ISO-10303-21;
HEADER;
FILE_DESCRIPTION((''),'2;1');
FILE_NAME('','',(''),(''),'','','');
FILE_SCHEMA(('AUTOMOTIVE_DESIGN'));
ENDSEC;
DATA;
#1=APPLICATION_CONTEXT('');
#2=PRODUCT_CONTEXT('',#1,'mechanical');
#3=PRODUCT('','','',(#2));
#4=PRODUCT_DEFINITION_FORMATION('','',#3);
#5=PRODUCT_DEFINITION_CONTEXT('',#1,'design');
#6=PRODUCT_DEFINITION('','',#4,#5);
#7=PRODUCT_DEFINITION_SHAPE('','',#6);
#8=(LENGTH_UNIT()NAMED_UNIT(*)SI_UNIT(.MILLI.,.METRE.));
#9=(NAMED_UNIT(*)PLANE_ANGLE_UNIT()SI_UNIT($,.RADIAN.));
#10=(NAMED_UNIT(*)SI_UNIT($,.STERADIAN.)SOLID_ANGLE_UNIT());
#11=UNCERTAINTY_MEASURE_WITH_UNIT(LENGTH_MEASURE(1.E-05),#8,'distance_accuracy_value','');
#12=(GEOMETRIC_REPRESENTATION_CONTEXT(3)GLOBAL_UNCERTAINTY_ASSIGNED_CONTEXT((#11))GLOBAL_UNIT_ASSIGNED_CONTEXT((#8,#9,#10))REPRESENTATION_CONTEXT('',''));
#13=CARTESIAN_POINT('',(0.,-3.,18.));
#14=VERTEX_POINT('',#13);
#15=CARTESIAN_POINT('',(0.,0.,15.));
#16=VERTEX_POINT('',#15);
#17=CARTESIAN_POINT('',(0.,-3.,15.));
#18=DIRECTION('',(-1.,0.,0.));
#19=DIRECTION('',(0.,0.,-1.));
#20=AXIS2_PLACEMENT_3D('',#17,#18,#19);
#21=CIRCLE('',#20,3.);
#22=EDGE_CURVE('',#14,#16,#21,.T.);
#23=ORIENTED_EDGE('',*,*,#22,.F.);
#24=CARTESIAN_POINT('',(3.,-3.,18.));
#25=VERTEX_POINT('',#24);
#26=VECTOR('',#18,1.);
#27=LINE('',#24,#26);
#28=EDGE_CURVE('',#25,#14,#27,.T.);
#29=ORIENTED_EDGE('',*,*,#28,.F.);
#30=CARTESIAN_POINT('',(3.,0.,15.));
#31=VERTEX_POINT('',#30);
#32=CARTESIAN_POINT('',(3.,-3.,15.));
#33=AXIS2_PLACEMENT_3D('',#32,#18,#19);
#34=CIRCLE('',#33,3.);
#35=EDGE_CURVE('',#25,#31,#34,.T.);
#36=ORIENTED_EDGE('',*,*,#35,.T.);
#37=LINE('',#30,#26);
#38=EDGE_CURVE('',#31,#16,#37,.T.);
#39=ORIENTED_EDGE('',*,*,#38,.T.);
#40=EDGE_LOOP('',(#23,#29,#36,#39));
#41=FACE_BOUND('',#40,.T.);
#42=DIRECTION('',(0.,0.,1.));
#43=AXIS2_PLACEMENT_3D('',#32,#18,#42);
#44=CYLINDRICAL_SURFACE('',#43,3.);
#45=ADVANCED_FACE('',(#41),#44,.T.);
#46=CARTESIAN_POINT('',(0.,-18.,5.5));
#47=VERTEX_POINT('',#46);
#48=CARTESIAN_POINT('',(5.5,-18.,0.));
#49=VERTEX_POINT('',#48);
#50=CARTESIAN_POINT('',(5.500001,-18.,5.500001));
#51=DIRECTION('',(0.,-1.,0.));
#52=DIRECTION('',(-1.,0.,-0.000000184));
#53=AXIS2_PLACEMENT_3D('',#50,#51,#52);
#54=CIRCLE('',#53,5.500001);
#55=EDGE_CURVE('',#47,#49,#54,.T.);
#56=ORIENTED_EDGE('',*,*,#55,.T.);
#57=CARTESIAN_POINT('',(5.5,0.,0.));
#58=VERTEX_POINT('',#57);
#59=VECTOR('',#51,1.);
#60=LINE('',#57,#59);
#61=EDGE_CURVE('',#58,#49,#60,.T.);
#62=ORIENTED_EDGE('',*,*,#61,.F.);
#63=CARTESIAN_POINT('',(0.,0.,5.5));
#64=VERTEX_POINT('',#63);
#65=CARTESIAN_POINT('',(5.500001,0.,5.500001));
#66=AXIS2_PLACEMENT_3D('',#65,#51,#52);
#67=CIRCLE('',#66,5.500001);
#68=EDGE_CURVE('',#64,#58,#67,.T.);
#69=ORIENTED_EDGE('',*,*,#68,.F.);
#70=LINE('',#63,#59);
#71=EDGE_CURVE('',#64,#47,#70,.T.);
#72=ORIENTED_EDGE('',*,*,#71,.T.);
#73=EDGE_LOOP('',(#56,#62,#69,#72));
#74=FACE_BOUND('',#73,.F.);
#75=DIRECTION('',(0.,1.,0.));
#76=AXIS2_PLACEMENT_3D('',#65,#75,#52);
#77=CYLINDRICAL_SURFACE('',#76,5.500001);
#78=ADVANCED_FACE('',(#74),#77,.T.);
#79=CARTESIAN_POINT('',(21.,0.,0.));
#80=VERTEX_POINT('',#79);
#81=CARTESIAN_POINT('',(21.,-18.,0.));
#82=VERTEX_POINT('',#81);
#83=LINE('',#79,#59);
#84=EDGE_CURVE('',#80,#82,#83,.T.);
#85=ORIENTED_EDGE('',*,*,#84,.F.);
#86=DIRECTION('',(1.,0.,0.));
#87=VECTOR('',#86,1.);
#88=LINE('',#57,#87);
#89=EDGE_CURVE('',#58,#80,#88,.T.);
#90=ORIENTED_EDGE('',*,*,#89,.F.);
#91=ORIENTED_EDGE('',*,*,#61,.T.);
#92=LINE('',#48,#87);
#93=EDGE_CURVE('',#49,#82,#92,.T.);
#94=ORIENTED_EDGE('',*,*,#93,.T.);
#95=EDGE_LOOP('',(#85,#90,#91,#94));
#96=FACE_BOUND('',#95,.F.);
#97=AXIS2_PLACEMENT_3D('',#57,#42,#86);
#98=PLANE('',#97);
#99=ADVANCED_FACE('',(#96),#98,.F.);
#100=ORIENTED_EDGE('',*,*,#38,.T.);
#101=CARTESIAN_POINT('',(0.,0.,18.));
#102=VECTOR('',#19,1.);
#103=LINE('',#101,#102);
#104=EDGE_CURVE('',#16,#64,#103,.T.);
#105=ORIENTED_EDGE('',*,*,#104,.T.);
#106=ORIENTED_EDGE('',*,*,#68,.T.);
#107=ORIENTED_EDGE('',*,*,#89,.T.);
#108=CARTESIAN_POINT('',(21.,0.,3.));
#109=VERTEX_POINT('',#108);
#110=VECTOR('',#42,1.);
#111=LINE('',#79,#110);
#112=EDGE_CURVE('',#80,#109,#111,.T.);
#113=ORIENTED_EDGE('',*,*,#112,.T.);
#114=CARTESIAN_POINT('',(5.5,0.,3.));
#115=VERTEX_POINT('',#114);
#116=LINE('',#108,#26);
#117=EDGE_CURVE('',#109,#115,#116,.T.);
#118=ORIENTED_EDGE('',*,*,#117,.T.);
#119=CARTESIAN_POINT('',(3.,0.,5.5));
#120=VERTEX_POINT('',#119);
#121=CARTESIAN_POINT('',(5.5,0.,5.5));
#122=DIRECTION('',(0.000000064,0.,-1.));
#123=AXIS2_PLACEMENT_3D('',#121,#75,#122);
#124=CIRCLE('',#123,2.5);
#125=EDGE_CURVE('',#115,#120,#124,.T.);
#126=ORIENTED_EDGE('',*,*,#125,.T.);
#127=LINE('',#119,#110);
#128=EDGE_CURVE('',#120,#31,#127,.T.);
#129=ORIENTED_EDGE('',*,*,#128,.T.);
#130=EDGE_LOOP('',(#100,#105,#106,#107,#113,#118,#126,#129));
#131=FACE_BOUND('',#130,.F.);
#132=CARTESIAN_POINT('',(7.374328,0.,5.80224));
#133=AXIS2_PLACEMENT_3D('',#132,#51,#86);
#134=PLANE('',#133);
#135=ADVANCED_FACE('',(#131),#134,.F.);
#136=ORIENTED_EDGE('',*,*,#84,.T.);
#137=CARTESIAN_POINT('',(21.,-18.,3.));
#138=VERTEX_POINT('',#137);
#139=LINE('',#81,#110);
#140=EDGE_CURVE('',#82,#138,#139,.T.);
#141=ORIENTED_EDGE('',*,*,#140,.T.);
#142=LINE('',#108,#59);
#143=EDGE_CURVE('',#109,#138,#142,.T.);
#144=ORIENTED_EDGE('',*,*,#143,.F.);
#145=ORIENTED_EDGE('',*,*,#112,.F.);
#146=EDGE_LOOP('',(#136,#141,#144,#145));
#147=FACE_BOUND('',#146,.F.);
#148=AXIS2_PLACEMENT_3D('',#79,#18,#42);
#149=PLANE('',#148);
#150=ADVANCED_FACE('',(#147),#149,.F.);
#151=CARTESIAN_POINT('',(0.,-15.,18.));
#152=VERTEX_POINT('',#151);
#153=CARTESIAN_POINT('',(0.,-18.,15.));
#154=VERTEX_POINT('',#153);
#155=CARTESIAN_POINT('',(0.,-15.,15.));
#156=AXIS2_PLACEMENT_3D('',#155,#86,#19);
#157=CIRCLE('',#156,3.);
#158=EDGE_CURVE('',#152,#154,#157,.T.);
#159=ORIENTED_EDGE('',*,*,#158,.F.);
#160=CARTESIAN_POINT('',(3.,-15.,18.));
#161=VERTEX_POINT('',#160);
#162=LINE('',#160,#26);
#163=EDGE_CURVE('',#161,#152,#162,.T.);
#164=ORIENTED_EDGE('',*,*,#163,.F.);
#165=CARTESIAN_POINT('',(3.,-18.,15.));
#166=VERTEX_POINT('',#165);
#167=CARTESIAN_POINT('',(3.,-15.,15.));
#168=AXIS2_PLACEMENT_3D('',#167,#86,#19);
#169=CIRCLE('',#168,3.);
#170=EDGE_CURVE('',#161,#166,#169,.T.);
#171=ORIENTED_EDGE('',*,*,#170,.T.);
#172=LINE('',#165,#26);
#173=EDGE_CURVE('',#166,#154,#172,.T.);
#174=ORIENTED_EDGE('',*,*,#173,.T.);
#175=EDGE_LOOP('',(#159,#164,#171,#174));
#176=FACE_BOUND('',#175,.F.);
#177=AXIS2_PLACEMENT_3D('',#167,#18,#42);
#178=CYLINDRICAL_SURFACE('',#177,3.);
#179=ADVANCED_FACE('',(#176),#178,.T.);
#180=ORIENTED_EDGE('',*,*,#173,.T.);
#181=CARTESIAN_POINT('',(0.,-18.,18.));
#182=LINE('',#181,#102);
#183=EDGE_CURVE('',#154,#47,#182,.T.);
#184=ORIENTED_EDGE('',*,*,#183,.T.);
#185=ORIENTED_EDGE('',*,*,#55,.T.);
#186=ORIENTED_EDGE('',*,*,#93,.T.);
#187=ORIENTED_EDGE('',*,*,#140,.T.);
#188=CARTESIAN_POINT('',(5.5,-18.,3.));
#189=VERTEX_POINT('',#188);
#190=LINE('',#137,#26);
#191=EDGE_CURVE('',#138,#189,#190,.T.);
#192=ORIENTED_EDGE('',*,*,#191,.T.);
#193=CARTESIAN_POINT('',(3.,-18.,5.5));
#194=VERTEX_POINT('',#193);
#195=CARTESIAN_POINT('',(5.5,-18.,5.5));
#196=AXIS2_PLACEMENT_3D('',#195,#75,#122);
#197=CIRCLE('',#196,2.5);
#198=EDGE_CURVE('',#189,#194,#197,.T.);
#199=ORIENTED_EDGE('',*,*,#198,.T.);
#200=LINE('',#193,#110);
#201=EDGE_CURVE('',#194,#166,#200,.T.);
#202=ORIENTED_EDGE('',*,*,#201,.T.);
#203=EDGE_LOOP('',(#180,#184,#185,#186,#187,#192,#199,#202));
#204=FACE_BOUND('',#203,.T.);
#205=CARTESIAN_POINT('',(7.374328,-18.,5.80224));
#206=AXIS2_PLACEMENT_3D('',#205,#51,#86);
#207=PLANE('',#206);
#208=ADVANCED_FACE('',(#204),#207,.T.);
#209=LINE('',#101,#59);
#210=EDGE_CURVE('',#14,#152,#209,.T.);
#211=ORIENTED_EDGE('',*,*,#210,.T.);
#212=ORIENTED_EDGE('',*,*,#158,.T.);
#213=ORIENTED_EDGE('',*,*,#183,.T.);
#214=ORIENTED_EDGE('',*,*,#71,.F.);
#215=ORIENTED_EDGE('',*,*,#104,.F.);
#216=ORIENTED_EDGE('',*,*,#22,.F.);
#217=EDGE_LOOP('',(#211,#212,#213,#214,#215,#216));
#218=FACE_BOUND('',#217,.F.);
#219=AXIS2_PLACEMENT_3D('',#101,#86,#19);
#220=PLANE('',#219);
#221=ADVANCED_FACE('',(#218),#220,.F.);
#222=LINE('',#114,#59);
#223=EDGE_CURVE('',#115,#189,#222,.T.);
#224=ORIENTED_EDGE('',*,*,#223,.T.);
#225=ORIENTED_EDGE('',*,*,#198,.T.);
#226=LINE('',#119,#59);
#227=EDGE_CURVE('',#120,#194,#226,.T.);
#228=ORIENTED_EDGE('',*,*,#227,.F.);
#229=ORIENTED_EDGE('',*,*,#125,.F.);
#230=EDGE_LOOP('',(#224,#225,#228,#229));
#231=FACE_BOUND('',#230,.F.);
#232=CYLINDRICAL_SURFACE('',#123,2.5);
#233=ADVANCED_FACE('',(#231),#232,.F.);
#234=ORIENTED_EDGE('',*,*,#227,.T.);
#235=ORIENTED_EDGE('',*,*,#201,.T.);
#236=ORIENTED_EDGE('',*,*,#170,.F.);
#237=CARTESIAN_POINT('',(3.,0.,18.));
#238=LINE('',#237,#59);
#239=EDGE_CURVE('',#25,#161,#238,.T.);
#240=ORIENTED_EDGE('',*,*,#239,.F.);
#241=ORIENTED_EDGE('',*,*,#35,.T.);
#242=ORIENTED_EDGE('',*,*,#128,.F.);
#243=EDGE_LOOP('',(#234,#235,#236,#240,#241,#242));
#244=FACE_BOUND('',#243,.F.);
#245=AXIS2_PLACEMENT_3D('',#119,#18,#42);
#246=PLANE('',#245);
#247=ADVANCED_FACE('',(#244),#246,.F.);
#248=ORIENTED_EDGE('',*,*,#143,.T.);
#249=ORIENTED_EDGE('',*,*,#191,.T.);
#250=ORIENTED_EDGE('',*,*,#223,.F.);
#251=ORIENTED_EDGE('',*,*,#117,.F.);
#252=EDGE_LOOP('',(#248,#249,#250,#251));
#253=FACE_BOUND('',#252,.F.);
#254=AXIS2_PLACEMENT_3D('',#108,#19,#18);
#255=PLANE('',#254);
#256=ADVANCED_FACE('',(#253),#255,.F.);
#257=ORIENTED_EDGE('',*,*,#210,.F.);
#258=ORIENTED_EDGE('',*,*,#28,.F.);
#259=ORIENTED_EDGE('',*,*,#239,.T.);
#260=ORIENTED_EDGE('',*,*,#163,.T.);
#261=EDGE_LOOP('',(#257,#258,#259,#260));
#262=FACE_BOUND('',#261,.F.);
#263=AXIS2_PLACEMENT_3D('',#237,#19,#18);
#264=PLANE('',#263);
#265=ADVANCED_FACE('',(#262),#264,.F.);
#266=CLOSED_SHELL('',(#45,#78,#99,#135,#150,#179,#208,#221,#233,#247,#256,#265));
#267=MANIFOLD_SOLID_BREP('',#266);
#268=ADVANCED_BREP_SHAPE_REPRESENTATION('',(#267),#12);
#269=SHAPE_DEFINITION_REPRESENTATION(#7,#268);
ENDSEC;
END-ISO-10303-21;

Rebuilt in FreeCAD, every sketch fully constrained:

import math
import FreeCAD as App
import Part
import Sketcher

V = App.Vector
Q = App.Units.Quantity


def edges_at(feature, points):
    """Names of the edges that pass closest to the given points."""
    edges = feature.Shape.Edges
    near = lambda p: min(range(len(edges)), key=lambda i: edges[i].distToShape(Part.Vertex(*p))[0])
    return sorted({f"Edge{near(p) + 1}" for p in points})

doc = App.newDocument("Part")
body = doc.addObject("PartDesign::Body", "Body")

# Sketch on XZ plane
sketch1 = body.newObject("Sketcher::SketchObject", "Sketch")
sketch1.AttachmentSupport = (doc.getObject("XZ_Plane"), [""])
sketch1.MapMode = "FlatFace"
sketch1.addGeometry([
    Part.ArcOfCircle(Part.Circle(V(5.5, 5.5, 0), V(0, 0, 1), 5.5), math.radians(-180), math.radians(-90)),  # 0
    Part.LineSegment(V(5.5, 0, 0), V(21, 0, 0)),  # 1
    Part.LineSegment(V(21, 0, 0), V(21, 3, 0)),  # 2
    Part.LineSegment(V(21, 3, 0), V(5.5, 3, 0)),  # 3
    Part.ArcOfCircle(Part.Circle(V(5.5, 5.5, 0), V(0, 0, 1), 2.5), math.radians(180), math.radians(270)),  # 4
    Part.LineSegment(V(3, 5.5, 0), V(3, 18, 0)),  # 5
    Part.LineSegment(V(3, 18, 0), V(0, 18, 0)),  # 6
    Part.LineSegment(V(0, 18, 0), V(0, 5.5, 0)),  # 7
], False)
sketch1.addConstraint([
    Sketcher.Constraint("Tangent", 0, 2, 1, 1),
    Sketcher.Constraint("Coincident", 1, 2, 2, 1),
    Sketcher.Constraint("Coincident", 2, 2, 3, 1),
    Sketcher.Constraint("Tangent", 3, 2, 4, 2),
    Sketcher.Constraint("Tangent", 4, 1, 5, 1),
    Sketcher.Constraint("Coincident", 5, 2, 6, 1),
    Sketcher.Constraint("Coincident", 6, 2, 7, 1),
    Sketcher.Constraint("Tangent", 7, 2, 0, 1),
    Sketcher.Constraint("Horizontal", 1),
    Sketcher.Constraint("Vertical", 2),
    Sketcher.Constraint("Horizontal", 3),
    Sketcher.Constraint("Vertical", 5),
    Sketcher.Constraint("Horizontal", 6),
    Sketcher.Constraint("Vertical", 7),
    Sketcher.Constraint("Coincident", 4, 3, 0, 3),
    Sketcher.Constraint("PointOnObject", 0, 2, -1),
    Sketcher.Constraint("PointOnObject", 6, 2, -2),
    Sketcher.Constraint("Radius", 0, Q("5.500001 mm")),
    Sketcher.Constraint("Radius", 4, Q("2.5 mm")),
    Sketcher.Constraint("DistanceX", 1, 1, 1, 2, Q("15.5 mm")),
    Sketcher.Constraint("DistanceY", 5, 1, 5, 2, Q("12.5 mm")),
])
pad1 = body.newObject("PartDesign::Pad", "Pad")
pad1.Profile = sketch1
pad1.Length = 18
doc.recompute()

fillet = body.newObject("PartDesign::Fillet", "Fillet")
fillet.Base = (pad1, edges_at(pad1, [(1.5, -18, 18), (1.5, 0, 18)]))
fillet.Radius = 3

doc.recompute()
